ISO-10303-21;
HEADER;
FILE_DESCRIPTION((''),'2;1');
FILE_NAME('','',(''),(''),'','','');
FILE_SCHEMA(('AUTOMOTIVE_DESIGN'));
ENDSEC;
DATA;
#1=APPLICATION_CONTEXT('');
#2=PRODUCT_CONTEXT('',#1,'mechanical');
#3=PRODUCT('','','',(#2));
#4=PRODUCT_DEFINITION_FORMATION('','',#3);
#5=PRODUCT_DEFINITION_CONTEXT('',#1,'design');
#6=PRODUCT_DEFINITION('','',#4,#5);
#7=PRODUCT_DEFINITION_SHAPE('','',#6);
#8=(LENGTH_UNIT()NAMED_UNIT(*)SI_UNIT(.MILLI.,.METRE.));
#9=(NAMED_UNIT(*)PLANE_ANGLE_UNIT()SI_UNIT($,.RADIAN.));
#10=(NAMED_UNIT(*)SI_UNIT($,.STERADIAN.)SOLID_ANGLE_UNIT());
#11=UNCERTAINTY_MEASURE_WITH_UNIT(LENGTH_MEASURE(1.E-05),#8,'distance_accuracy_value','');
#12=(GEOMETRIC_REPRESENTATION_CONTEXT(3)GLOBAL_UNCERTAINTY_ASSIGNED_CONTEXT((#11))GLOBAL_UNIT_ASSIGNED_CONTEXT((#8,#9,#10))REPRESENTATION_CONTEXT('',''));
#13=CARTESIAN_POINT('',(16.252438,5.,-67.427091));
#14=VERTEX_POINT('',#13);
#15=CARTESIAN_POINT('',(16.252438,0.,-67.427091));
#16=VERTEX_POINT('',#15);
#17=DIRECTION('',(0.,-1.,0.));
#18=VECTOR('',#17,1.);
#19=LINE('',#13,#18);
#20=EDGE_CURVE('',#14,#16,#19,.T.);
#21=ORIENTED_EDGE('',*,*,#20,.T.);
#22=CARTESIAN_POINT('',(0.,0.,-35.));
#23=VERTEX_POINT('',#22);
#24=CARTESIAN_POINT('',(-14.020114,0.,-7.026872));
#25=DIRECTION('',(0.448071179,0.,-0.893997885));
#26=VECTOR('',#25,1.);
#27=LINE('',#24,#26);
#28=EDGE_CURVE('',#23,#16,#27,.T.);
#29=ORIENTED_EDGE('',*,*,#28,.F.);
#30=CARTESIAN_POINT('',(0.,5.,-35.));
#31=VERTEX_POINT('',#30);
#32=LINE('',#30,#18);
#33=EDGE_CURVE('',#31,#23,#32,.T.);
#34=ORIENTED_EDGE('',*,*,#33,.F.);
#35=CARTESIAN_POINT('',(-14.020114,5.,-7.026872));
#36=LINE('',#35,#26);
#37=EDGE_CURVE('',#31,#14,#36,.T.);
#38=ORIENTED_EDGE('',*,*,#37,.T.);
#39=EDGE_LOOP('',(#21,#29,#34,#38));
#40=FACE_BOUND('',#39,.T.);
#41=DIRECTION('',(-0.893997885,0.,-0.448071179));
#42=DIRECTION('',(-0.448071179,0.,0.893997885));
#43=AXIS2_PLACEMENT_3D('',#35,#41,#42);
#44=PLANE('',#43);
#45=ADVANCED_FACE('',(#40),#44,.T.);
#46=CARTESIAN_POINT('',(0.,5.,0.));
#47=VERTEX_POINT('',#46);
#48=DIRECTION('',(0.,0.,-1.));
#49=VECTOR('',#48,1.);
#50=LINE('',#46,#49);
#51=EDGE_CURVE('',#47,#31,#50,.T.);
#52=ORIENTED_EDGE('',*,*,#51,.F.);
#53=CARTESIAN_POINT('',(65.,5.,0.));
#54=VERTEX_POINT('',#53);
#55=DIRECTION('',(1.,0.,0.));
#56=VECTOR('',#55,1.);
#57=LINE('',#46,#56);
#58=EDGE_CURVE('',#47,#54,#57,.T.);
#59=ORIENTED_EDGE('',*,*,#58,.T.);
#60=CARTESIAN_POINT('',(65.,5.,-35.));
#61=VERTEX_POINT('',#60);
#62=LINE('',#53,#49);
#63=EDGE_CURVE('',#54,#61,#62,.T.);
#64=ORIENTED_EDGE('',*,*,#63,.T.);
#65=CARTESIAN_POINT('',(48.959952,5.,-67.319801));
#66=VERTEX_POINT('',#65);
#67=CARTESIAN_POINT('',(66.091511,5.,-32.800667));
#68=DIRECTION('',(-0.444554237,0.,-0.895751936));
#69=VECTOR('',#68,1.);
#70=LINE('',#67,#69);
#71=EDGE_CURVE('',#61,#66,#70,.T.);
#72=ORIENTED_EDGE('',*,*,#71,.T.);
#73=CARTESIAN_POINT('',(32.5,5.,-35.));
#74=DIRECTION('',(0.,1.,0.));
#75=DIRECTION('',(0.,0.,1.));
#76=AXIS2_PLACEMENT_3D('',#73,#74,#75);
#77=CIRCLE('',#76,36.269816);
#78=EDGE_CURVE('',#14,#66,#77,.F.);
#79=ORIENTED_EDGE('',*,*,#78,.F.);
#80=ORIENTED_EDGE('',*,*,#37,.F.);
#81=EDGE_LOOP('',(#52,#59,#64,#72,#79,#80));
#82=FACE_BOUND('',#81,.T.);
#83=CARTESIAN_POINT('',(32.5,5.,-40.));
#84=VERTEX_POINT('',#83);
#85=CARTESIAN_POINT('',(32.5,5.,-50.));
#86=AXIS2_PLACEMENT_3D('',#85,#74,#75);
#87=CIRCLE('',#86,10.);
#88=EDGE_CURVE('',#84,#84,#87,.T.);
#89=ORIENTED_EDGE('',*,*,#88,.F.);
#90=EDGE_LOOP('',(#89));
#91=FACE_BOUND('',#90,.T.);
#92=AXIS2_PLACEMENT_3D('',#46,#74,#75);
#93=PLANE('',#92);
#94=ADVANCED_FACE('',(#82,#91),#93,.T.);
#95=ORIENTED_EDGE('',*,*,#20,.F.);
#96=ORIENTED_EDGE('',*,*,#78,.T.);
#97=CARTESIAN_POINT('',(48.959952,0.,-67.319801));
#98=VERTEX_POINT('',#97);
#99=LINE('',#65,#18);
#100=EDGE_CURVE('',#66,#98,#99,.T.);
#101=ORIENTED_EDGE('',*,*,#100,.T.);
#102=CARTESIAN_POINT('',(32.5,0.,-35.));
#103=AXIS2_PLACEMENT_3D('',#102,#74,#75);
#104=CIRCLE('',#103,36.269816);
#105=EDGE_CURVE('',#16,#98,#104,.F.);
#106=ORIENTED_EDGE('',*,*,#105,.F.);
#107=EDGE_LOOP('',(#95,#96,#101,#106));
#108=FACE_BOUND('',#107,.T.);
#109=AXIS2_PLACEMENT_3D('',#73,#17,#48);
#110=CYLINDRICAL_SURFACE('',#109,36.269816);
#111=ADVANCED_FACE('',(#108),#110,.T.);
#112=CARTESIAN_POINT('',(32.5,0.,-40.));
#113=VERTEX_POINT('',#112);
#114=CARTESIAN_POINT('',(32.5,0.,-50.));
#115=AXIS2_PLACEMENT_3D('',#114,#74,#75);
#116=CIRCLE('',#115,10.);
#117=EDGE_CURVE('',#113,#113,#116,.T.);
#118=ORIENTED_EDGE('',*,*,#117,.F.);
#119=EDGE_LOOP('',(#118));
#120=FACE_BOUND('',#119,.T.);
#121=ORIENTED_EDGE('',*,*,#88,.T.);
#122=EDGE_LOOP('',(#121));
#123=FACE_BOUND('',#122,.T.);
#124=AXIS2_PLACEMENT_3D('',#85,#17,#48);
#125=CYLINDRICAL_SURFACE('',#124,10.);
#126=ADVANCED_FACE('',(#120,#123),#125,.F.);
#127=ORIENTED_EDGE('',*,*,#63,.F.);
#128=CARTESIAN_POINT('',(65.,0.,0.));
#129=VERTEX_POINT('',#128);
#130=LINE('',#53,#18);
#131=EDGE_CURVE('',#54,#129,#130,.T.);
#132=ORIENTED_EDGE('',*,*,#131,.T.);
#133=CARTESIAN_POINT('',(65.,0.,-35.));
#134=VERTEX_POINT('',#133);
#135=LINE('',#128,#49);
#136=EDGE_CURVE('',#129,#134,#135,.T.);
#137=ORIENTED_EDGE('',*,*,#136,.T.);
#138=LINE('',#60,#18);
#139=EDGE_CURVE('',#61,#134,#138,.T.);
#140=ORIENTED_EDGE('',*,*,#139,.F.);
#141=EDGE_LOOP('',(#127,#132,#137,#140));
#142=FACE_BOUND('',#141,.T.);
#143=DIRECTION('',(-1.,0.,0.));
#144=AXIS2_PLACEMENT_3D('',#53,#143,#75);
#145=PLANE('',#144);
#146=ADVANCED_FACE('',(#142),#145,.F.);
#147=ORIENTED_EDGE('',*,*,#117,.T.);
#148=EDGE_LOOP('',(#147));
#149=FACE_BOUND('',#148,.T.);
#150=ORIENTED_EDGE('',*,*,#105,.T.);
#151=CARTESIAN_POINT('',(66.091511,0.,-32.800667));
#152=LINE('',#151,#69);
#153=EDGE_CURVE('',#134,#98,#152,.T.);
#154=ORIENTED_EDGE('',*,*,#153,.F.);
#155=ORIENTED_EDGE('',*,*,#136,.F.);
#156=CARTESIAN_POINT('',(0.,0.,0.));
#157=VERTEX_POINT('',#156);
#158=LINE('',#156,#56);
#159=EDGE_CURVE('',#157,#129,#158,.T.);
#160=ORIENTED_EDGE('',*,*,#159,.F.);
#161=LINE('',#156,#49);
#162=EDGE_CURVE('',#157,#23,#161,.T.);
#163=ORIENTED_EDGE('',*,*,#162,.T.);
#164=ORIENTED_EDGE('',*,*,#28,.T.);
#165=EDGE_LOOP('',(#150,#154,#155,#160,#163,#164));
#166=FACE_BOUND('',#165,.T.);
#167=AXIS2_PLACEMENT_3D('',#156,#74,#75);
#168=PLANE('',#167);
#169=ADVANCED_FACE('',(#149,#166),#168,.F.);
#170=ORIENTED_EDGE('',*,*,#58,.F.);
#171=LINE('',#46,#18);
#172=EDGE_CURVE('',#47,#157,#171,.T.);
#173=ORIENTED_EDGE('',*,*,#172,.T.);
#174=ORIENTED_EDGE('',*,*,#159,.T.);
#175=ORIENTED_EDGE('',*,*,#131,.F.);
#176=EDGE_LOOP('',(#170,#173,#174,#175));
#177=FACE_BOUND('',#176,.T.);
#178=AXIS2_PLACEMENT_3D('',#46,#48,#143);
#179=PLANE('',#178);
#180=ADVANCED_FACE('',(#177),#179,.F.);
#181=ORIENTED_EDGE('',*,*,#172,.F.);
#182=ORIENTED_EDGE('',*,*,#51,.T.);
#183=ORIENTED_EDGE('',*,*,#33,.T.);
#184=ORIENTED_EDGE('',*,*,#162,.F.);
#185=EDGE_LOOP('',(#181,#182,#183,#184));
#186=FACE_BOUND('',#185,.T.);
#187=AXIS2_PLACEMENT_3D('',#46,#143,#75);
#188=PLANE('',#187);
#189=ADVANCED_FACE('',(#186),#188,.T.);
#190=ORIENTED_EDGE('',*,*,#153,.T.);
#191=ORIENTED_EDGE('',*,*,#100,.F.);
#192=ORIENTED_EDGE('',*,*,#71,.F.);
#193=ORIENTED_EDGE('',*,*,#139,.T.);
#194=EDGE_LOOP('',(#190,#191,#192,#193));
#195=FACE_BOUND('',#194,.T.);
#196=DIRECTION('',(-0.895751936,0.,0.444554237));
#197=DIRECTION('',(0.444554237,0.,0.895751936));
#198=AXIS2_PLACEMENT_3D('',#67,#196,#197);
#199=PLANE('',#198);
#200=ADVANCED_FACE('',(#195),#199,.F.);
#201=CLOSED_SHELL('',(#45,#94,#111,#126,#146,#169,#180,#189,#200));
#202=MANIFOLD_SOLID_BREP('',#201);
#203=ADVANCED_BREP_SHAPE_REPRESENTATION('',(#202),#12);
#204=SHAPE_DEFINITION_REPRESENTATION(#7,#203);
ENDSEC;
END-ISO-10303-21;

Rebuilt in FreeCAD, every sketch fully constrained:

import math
import FreeCAD as App
import Part
import Sketcher

V = App.Vector
Q = App.Units.Quantity

doc = App.newDocument("Part")
body = doc.addObject("PartDesign::Body", "Body")

# Sketch on XZ plane
sketch1 = body.newObject("Sketcher::SketchObject", "Sketch")
sketch1.AttachmentSupport = (doc.getObject("XZ_Plane"), [""])
sketch1.MapMode = "FlatFace"
sketch1.addGeometry(Part.LineSegment(V(0, -35, 0), V(0, 0, 0)), False)
sketch1.addGeometry(Part.LineSegment(V(0, 0, 0), V(65, 0, 0)), False)
sketch1.addGeometry(Part.LineSegment(V(65, 0, 0), V(65, -35, 0)), False)
sketch1.addGeometry(Part.LineSegment(V(65, -35, 0), V(48.959952, -67.319801, 0)), False)
sketch1.addGeometry(Part.ArcOfCircle(Part.Circle(V(32.5, -35, 0), V(0, 0, 1), 36.269816), math.radians(-116.613114), math.radians(-63.010992)), False)
sketch1.addGeometry(Part.LineSegment(V(16.252438, -67.427091, 0), V(0, -35, 0)), False)
sketch1.addGeometry(Part.Circle(V(32.5, -50, 0), V(0, 0, 1), 10), False)
sketch1.addConstraint(Sketcher.Constraint("Coincident", 0, 2, 1, 1))
sketch1.addConstraint(Sketcher.Constraint("Coincident", 1, 2, 2, 1))
sketch1.addConstraint(Sketcher.Constraint("Coincident", 2, 2, 3, 1))
sketch1.addConstraint(Sketcher.Constraint("Coincident", 3, 2, 4, 2))
sketch1.addConstraint(Sketcher.Constraint("Coincident", 4, 1, 5, 1))
sketch1.addConstraint(Sketcher.Constraint("Coincident", 5, 2, 0, 1))
sketch1.addConstraint(Sketcher.Constraint("Vertical", 0))
sketch1.addConstraint(Sketcher.Constraint("Horizontal", 1))
sketch1.addConstraint(Sketcher.Constraint("Vertical", 2))
sketch1.addConstraint(Sketcher.Constraint("Coincident", 0, 2, -1, 1))
sketch1.addConstraint(Sketcher.Constraint("Horizontal", 4, 3, 2, 2))
sketch1.addConstraint(Sketcher.Constraint("Horizontal", 2, 2, 5, 2))
sketch1.addConstraint(Sketcher.Constraint("Vertical", 4, 3, 6, 3))
sketch1.addConstraint(Sketcher.Constraint("Diameter", 6, 20.0))
sketch1.addConstraint(Sketcher.Constraint("DistanceX", 1, 1, 1, 2, 65.0))
sketch1.addConstraint(Sketcher.Constraint("DistanceY", 0, 1, 0, 2, 35.0))
sketch1.addConstraint(Sketcher.Constraint("DistanceY", 6, 3, -1, 1, 50.0))
sketch1.addConstraint(Sketcher.Constraint("DistanceX", -1, 1, 4, 3, 32.5))
sketch1.addConstraint(Sketcher.Constraint("Angle", 5, Q("116.62 deg")))
sketch1.addConstraint(Sketcher.Constraint("Distance", 5, 36.272))
sketch1.addConstraint(Sketcher.Constraint("DistanceY", 3, 2, -1, 1, 67.319801))
pad1 = body.newObject("PartDesign::Pad", "Pad")
pad1.Profile = sketch1
pad1.Length = 5
pad1.Reversed = True

doc.recompute()
